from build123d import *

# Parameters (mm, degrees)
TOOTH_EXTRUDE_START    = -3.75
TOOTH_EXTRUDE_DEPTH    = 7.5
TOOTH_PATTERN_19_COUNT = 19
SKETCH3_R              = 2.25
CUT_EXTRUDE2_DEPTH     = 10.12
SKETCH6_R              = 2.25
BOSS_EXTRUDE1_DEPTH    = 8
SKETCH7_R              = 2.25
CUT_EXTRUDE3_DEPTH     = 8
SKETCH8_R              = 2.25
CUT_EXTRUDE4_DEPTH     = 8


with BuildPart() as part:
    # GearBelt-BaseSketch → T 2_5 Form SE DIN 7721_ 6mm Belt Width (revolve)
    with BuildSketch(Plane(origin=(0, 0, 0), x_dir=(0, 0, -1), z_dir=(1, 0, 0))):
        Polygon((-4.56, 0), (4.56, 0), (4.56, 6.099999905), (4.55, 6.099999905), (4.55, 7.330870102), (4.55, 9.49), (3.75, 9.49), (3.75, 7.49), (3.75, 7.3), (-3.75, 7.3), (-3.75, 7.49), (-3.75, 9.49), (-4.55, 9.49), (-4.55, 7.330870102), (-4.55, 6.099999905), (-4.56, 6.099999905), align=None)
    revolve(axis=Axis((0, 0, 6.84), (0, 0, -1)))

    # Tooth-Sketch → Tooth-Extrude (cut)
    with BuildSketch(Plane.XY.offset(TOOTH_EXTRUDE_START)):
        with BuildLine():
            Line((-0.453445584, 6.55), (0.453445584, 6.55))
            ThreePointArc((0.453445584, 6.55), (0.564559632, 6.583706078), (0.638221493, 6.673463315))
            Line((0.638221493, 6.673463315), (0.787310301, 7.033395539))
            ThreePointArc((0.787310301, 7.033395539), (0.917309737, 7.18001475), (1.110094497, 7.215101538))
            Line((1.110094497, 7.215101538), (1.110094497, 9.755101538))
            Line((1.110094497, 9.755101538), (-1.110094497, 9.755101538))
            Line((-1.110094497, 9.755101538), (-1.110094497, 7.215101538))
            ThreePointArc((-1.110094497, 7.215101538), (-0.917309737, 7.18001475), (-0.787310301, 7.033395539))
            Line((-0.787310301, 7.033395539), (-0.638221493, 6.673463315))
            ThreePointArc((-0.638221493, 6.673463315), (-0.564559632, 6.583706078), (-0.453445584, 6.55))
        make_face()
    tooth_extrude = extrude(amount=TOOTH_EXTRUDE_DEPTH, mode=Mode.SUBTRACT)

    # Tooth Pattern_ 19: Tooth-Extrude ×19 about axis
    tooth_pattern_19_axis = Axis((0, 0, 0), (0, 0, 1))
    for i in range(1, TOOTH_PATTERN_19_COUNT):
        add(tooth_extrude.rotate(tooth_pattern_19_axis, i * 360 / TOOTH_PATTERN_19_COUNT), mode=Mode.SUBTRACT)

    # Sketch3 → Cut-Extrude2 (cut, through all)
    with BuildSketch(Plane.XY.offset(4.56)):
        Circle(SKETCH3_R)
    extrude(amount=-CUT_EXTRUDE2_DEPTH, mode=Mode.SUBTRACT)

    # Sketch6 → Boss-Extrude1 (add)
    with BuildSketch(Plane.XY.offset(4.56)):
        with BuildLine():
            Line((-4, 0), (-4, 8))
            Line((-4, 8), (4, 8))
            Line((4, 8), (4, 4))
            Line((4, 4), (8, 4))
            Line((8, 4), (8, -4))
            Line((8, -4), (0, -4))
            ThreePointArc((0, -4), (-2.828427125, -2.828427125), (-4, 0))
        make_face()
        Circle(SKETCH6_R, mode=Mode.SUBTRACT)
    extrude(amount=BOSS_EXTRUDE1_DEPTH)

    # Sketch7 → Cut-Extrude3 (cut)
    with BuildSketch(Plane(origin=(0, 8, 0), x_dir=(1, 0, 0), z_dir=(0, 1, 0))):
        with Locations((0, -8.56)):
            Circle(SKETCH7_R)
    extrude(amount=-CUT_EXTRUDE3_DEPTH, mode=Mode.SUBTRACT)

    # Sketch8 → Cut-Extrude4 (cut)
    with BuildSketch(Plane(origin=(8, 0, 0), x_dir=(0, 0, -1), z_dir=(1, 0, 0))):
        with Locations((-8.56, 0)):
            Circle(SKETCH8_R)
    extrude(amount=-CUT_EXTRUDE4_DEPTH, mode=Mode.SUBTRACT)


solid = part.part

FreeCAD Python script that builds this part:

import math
import FreeCAD as App
import Part
import Sketcher
Q = App.Units.Quantity


def add_polygon(sketch, points):
    """Adds a closed chain of lines whose ends are joined by coincident constraints."""
    first, n = sketch.GeometryCount, len(points)
    for a, b in zip(points, points[1:] + points[:1]):
        sketch.addGeometry(Part.LineSegment(App.Vector(*a, 0), App.Vector(*b, 0)), False)
    for i in range(n):
        sketch.addConstraint(Sketcher.Constraint("Coincident", first + i, 2, first + (i + 1) % n, 1))

doc = App.newDocument("Part")
body = doc.addObject("PartDesign::Body", "Body")

# Sketch on YZ plane
sketch1 = body.newObject("Sketcher::SketchObject", "Sketch")
sketch1.AttachmentSupport = (doc.getObject("YZ_Plane"), [""])
sketch1.MapMode = "FlatFace"
add_polygon(sketch1, [(0, 4.56), (0, -4.56), (6.1, -4.56), (6.1, -4.55), (9.49, -4.55), (9.49, -3.75), (7.3, -3.75), (7.3, 3.75), (9.49, 3.75), (9.49, 4.55), (6.1, 4.55), (6.1, 4.56)])  # lines 0-11
sketch1.addConstraint([
    Sketcher.Constraint("Vertical", 0),
    Sketcher.Constraint("Horizontal", 1),
    Sketcher.Constraint("Vertical", 2),
    Sketcher.Constraint("Horizontal", 3),
    Sketcher.Constraint("Vertical", 4),
    Sketcher.Constraint("Horizontal", 5),
    Sketcher.Constraint("Vertical", 6),
    Sketcher.Constraint("Horizontal", 7),
    Sketcher.Constraint("Vertical", 8),
    Sketcher.Constraint("Horizontal", 9),
    Sketcher.Constraint("Vertical", 10),
    Sketcher.Constraint("Horizontal", 11),
    Sketcher.Constraint("Symmetric", 0, 2, 11, 2, -1, 1),
    Sketcher.Constraint("Symmetric", 4, 2, 7, 2, -1),
    Sketcher.Constraint("Symmetric", 2, 2, 9, 2, -1),
    Sketcher.Constraint("DistanceX", 1, 1, 1, 2, Q("6.1 mm")),
    Sketcher.Constraint("DistanceY", 4, 1, 4, 2, Q("0.8 mm")),
    Sketcher.Constraint("DistanceY", 6, 1, 6, 2, Q("7.5 mm")),
    Sketcher.Constraint("DistanceX", 3, 1, 3, 2, Q("3.39 mm")),
    Sketcher.Constraint("DistanceX", 5, 2, 5, 1, Q("2.19 mm")),
    Sketcher.Constraint("DistanceY", 0, 2, 0, 1, Q("9.12 mm")),
])
revolution = body.newObject("PartDesign::Revolution", "Revolution")
revolution.Profile = sketch1
revolution.ReferenceAxis = (sketch1, ["V_Axis"])
revolution.Angle = 360

# Sketch on XY plane
sketch2 = body.newObject("Sketcher::SketchObject", "Sketch001")
sketch2.AttachmentSupport = (doc.getObject("XY_Plane"), [""])
sketch2.MapMode = "FlatFace"
sketch2.AttachmentOffset = App.Placement(App.Vector(0, 0, -3.75), App.Rotation())
sketch2.addGeometry([
    Part.LineSegment(App.Vector(-0.45, 6.55, 0), App.Vector(0.45, 6.55, 0)),  # 0
    Part.ArcOfCircle(Part.Circle(App.Vector(0.45, 6.75, 0), App.Vector(0, 0, 1), 0.2), math.radians(-90), math.radians(-23)),  # 1
    Part.LineSegment(App.Vector(0.64, 6.67, 0), App.Vector(0.79, 7.03, 0)),  # 2
    Part.ArcOfCircle(Part.Circle(App.Vector(1.06, 6.92, 0), App.Vector(0, 0, 1), 0.3), math.radians(81), math.radians(157)),  # 3
    Part.LineSegment(App.Vector(1.11, 7.22, 0), App.Vector(1.11, 9.76, 0)),  # 4
    Part.LineSegment(App.Vector(1.11, 9.76, 0), App.Vector(-1.11, 9.76, 0)),  # 5
    Part.LineSegment(App.Vector(-1.11, 9.76, 0), App.Vector(-1.11, 7.22, 0)),  # 6
    Part.ArcOfCircle(Part.Circle(App.Vector(-1.06, 6.92, 0), App.Vector(0, 0, 1), 0.3), math.radians(23), math.radians(99)),  # 7
    Part.LineSegment(App.Vector(-0.79, 7.03, 0), App.Vector(-0.64, 6.67, 0)),  # 8
    Part.ArcOfCircle(Part.Circle(App.Vector(-0.45, 6.75, 0), App.Vector(0, 0, 1), 0.2), math.radians(-157), math.radians(-90)),  # 9
], False)
sketch2.addConstraint([
    Sketcher.Constraint("Tangent", 0, 2, 1, 1),
    Sketcher.Constraint("Tangent", 1, 2, 2, 1),
    Sketcher.Constraint("Tangent", 2, 2, 3, 2),
    Sketcher.Constraint("Coincident", 3, 1, 4, 1),
    Sketcher.Constraint("Coincident", 4, 2, 5, 1),
    Sketcher.Constraint("Coincident", 5, 2, 6, 1),
    Sketcher.Constraint("Coincident", 6, 2, 7, 2),
    Sketcher.Constraint("Tangent", 7, 1, 8, 1),
    Sketcher.Constraint("Tangent", 8, 2, 9, 1),
    Sketcher.Constraint("Tangent", 9, 2, 0, 1),
    Sketcher.Constraint("Horizontal", 0),
    Sketcher.Constraint("Vertical", 4),
    Sketcher.Constraint("Horizontal", 5),
    Sketcher.Constraint("Vertical", 6),
    Sketcher.Constraint("Equal", 3, 7),
    Sketcher.Constraint("Equal", 1, 9),
    Sketcher.Constraint("Symmetric", 3, 3, 7, 3, -2),
    Sketcher.Constraint("Horizontal", 3, 1, 6, 2),
    Sketcher.Constraint("Horizontal", 2, 2, 7, 1),
    Sketcher.Constraint("Radius", 1, Q("0.2 mm")),
    Sketcher.Constraint("Radius", 3, Q("0.3 mm")),
    Sketcher.Constraint("Angle", 2, Q("67.5 deg")),
    Sketcher.Constraint("DistanceY", 4, 1, 4, 2, Q("2.54 mm")),
    Sketcher.Constraint("DistanceY", -1, 1, 1, 3, Q("6.75 mm")),
    Sketcher.Constraint("DistanceX", 0, 1, 0, 2, Q("0.906891 mm")),
    Sketcher.Constraint("DistanceX", 5, 2, 5, 1, Q("2.220189 mm")),
    Sketcher.Constraint("DistanceY", -1, 1, 3, 1, Q("7.215102 mm")),
])
pocket1 = body.newObject("PartDesign::Pocket", "Pocket")
pocket1.Profile = sketch2
pocket1.Length = 7.5
pocket1.Reversed = True
doc.recompute()

polarpattern = body.newObject("PartDesign::PolarPattern", "PolarPattern")
polarpattern.Originals = [pocket1]
polarpattern.Axis = (doc.getObject("Z_Axis"), [""])
polarpattern.Angle = 360
polarpattern.Occurrences = 19
body.Tip = polarpattern

# Sketch on XY plane
sketch3 = body.newObject("Sketcher::SketchObject", "Sketch002")
sketch3.AttachmentSupport = (doc.getObject("XY_Plane"), [""])
sketch3.MapMode = "FlatFace"
sketch3.AttachmentOffset = App.Placement(App.Vector(0, 0, 4.56), App.Rotation())
sketch3.addGeometry(Part.Circle(App.Vector(0, 0, 0), App.Vector(0, 0, 1), 2.2), False)
sketch3.addConstraint([
    Sketcher.Constraint("Coincident", 0, 3, -1, 1),
    Sketcher.Constraint("Diameter", 0, Q("4.5 mm")),
])
pocket2 = body.newObject("PartDesign::Pocket", "Pocket001")
pocket2.Profile = sketch3
pocket2.Type = "ThroughAll"

# Sketch on XY plane
sketch4 = body.newObject("Sketcher::SketchObject", "Sketch003")
sketch4.AttachmentSupport = (doc.getObject("XY_Plane"), [""])
sketch4.MapMode = "FlatFace"
sketch4.AttachmentOffset = App.Placement(App.Vector(0, 0, 4.56), App.Rotation())
sketch4.addGeometry([
    Part.LineSegment(App.Vector(-4, 8, 0), App.Vector(-4, 0, 0)),  # 0
    Part.ArcOfCircle(Part.Circle(App.Vector(0, 0, 0), App.Vector(0, 0, 1), 4), math.radians(180), math.radians(270)),  # 1
    Part.LineSegment(App.Vector(0, -4, 0), App.Vector(8, -4, 0)),  # 2
    Part.LineSegment(App.Vector(8, -4, 0), App.Vector(8, 4, 0)),  # 3
    Part.LineSegment(App.Vector(8, 4, 0), App.Vector(4, 4, 0)),  # 4
    Part.LineSegment(App.Vector(4, 4, 0), App.Vector(4, 8, 0)),  # 5
    Part.LineSegment(App.Vector(4, 8, 0), App.Vector(-4, 8, 0)),  # 6
    Part.Circle(App.Vector(0, 0, 0), App.Vector(0, 0, 1), 2.2),  # 7
], False)
sketch4.addConstraint([
    Sketcher.Constraint("Tangent", 0, 2, 1, 1),
    Sketcher.Constraint("Tangent", 1, 2, 2, 1),
    Sketcher.Constraint("Coincident", 2, 2, 3, 1),
    Sketcher.Constraint("Coincident", 3, 2, 4, 1),
    Sketcher.Constraint("Coincident", 4, 2, 5, 1),
    Sketcher.Constraint("Coincident", 5, 2, 6, 1),
    Sketcher.Constraint("Coincident", 6, 2, 0, 1),
    Sketcher.Constraint("Vertical", 0),
    Sketcher.Constraint("Horizontal", 2),
    Sketcher.Constraint("Vertical", 3),
    Sketcher.Constraint("Horizontal", 4),
    Sketcher.Constraint("Vertical", 5),
    Sketcher.Constraint("Horizontal", 6),
    Sketcher.Constraint("Coincident", 1, 3, -1, 1),
    Sketcher.Constraint("Coincident", 7, 3, -1, 1),
    Sketcher.Constraint("Equal", 2, 6),
    Sketcher.Constraint("Equal", 6, 0),
    Sketcher.Constraint("Equal", 0, 3),
    Sketcher.Constraint("Radius", 1, Q("4 mm")),
    Sketcher.Constraint("Diameter", 7, Q("4.5 mm")),
    Sketcher.Constraint("DistanceX", 2, 1, 2, 2, Q("8 mm")),
])
pad1 = body.newObject("PartDesign::Pad", "Pad")
pad1.Profile = sketch4
pad1.Length = 8

# Sketch on XZ plane
sketch5 = body.newObject("Sketcher::SketchObject", "Sketch004")
sketch5.AttachmentSupport = (doc.getObject("XZ_Plane"), [""])
sketch5.MapMode = "FlatFace"
sketch5.AttachmentOffset = App.Placement(App.Vector(0, 0, -8), App.Rotation())
sketch5.addGeometry(Part.Circle(App.Vector(0, 8.6, 0), App.Vector(0, 0, 1), 2.2), False)
sketch5.addConstraint([
    Sketcher.Constraint("PointOnObject", 0, 3, -2),
    Sketcher.Constraint("Diameter", 0, Q("4.5 mm")),
    Sketcher.Constraint("DistanceY", -1, 1, 0, 3, Q("8.56 mm")),
])
pocket3 = body.newObject("PartDesign::Pocket", "Pocket002")
pocket3.Profile = sketch5
pocket3.Length = 8
pocket3.Reversed = True

# Sketch on YZ plane
sketch6 = body.newObject("Sketcher::SketchObject", "Sketch005")
sketch6.AttachmentSupport = (doc.getObject("YZ_Plane"), [""])
sketch6.MapMode = "FlatFace"
sketch6.AttachmentOffset = App.Placement(App.Vector(0, 0, 8), App.Rotation())
sketch6.addGeometry(Part.Circle(App.Vector(0, 8.6, 0), App.Vector(0, 0, 1), 2.2), False)
sketch6.addConstraint([
    Sketcher.Constraint("PointOnObject", 0, 3, -2),
    Sketcher.Constraint("Diameter", 0, Q("4.5 mm")),
    Sketcher.Constraint("DistanceY", -1, 1, 0, 3, Q("8.56 mm")),
])
pocket4 = body.newObject("PartDesign::Pocket", "Pocket003")
pocket4.Profile = sketch6
pocket4.Length = 8

doc.recompute()
